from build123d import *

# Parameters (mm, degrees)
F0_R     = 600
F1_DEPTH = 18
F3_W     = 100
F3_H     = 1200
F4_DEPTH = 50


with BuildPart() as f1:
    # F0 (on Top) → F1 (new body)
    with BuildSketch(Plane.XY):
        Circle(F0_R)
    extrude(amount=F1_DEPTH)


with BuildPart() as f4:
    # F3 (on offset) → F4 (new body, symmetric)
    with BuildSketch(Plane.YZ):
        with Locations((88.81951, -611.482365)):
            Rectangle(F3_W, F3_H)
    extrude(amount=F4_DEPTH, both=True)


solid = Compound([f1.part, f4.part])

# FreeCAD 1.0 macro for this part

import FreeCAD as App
import Part
import Sketcher

V = App.Vector


def add_polygon(sketch, points):
    """Adds a closed chain of lines whose ends are joined by coincident constraints."""
    first, n = sketch.GeometryCount, len(points)
    for a, b in zip(points, points[1:] + points[:1]):
        sketch.addGeometry(Part.LineSegment(App.Vector(*a, 0), App.Vector(*b, 0)), False)
    for i in range(n):
        sketch.addConstraint(Sketcher.Constraint("Coincident", first + i, 2, first + (i + 1) % n, 1))

doc = App.newDocument("Part")
body = doc.addObject("PartDesign::Body", "Body")

# Sketch on XY plane
sketch1 = body.newObject("Sketcher::SketchObject", "Sketch")
sketch1.AttachmentSupport = (doc.getObject("XY_Plane"), [""])
sketch1.MapMode = "FlatFace"
sketch1.addGeometry(Part.Circle(V(0, 0, 0), V(0, 0, 1), 600), False)
sketch1.addConstraint(Sketcher.Constraint("Coincident", 0, 3, -1, 1))
sketch1.addConstraint(Sketcher.Constraint("Diameter", 0, 1200.0))
pad1 = body.newObject("PartDesign::Pad", "Pad")
pad1.Profile = sketch1
pad1.Length = 18
body2 = doc.addObject("PartDesign::Body", "Body001")

# Sketch on YZ plane
sketch2 = body2.newObject("Sketcher::SketchObject", "Sketch001")
sketch2.AttachmentSupport = (doc.getObject("YZ_Plane001"), [""])
sketch2.MapMode = "FlatFace"
add_polygon(sketch2, [(38.81951, -11.482365), (38.81951, -1211.482365), (138.81951, -1211.482365), (138.81951, -11.482365)])  # lines 0-3
sketch2.addConstraint(Sketcher.Constraint("Vertical", 0))
sketch2.addConstraint(Sketcher.Constraint("Horizontal", 1))
sketch2.addConstraint(Sketcher.Constraint("Vertical", 2))
sketch2.addConstraint(Sketcher.Constraint("Horizontal", 3))
sketch2.addConstraint(Sketcher.Constraint("DistanceX", 1, 1, 1, 2, 100.0))
sketch2.addConstraint(Sketcher.Constraint("DistanceY", 0, 2, 0, 1, 1200.0))
sketch2.addConstraint(Sketcher.Constraint("DistanceX", -1, 1, 0, 2, 38.81951))
sketch2.addConstraint(Sketcher.Constraint("DistanceY", 0, 2, -1, 1, 1211.482365))
pad2 = body2.newObject("PartDesign::Pad", "Pad001")
pad2.Profile = sketch2
pad2.Length = 100
pad2.Midplane = True

doc.recompute()
